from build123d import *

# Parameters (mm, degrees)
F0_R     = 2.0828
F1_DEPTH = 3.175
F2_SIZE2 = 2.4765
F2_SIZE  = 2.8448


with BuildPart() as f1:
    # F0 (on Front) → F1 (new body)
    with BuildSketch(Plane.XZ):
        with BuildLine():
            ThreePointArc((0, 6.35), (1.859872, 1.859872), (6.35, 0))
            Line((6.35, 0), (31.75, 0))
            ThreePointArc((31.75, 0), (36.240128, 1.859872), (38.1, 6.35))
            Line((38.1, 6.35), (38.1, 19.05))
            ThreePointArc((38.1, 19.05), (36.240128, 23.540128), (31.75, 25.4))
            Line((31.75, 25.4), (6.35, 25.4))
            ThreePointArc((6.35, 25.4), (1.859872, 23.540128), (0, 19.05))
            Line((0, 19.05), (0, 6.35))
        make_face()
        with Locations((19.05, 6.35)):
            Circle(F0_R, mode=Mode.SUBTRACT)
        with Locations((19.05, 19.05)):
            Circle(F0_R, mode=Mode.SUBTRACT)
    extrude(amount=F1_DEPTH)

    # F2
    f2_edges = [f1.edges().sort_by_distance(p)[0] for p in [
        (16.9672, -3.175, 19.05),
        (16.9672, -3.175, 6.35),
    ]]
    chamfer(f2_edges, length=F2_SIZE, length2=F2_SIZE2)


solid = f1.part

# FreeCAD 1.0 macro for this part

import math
import FreeCAD as App
import Part
import Sketcher
from FreeCAD import Vector
Q = App.Units.Quantity


def edges_at(feature, points):
    """Names of the edges that pass closest to the given points."""
    edges = feature.Shape.Edges
    near = lambda p: min(range(len(edges)), key=lambda i: edges[i].distToShape(Part.Vertex(*p))[0])
    return sorted({f"Edge{near(p) + 1}" for p in points})

doc = App.newDocument("Part")
body = doc.addObject("PartDesign::Body", "Body")

sketch1 = doc.addObject("Sketcher::SketchObject", "Sketch")
body.addObject(sketch1)
sketch1.AttachmentSupport = (doc.XZ_Plane, [""])
sketch1.MapMode = "FlatFace"
sketch1.addGeometry(Part.ArcOfCircle(Part.Circle(Vector(6.35, 6.35, 0), Vector(0, 0, 1), 6.35), math.radians(-179.999998), math.radians(-90.000002)), False)
sketch1.addGeometry(Part.LineSegment(Vector(6.35, 0, 0), Vector(31.75, 0, 0)), False)
sketch1.addGeometry(Part.ArcOfCircle(Part.Circle(Vector(31.75, 6.35, 0), Vector(0, 0, 1), 6.35), math.radians(-89.999998), math.radians(-0.000002)), False)
sketch1.addGeometry(Part.LineSegment(Vector(38.1, 6.35, 0), Vector(38.1, 19.05, 0)), False)
sketch1.addGeometry(Part.ArcOfCircle(Part.Circle(Vector(31.75, 19.05, 0), Vector(0, 0, 1), 6.35), math.radians(0.000002), math.radians(89.999998)), False)
sketch1.addGeometry(Part.LineSegment(Vector(31.75, 25.4, 0), Vector(6.35, 25.4, 0)), False)
sketch1.addGeometry(Part.ArcOfCircle(Part.Circle(Vector(6.35, 19.05, 0), Vector(0, 0, 1), 6.35), math.radians(90.000002), math.radians(179.999998)), False)
sketch1.addGeometry(Part.LineSegment(Vector(0, 19.05, 0), Vector(0, 6.35, 0)), False)
sketch1.addGeometry(Part.Circle(Vector(19.05, 6.35, 0), Vector(0, 0, 1), 2.0828), False)
sketch1.addGeometry(Part.Circle(Vector(19.05, 19.05, 0), Vector(0, 0, 1), 2.0828), False)
sketch1.addConstraint(Sketcher.Constraint("Tangent", 0, 2, 1, 1))
sketch1.addConstraint(Sketcher.Constraint("Tangent", 1, 2, 2, 1))
sketch1.addConstraint(Sketcher.Constraint("Tangent", 2, 2, 3, 1))
sketch1.addConstraint(Sketcher.Constraint("Tangent", 3, 2, 4, 1))
sketch1.addConstraint(Sketcher.Constraint("Tangent", 4, 2, 5, 1))
sketch1.addConstraint(Sketcher.Constraint("Tangent", 5, 2, 6, 1))
sketch1.addConstraint(Sketcher.Constraint("Tangent", 6, 2, 7, 1))
sketch1.addConstraint(Sketcher.Constraint("Tangent", 7, 2, 0, 1))
sketch1.addConstraint(Sketcher.Constraint("Horizontal", 1))
sketch1.addConstraint(Sketcher.Constraint("Vertical", 3))
sketch1.addConstraint(Sketcher.Constraint("Horizontal", 5))
sketch1.addConstraint(Sketcher.Constraint("Vertical", 7))
sketch1.addConstraint(Sketcher.Constraint("Equal", 0, 2))
sketch1.addConstraint(Sketcher.Constraint("Equal", 2, 4))
sketch1.addConstraint(Sketcher.Constraint("Equal", 4, 6))
sketch1.addConstraint(Sketcher.Constraint("Equal", 8, 9))
sketch1.addConstraint(Sketcher.Constraint("PointOnObject", 0, 2, -1))
sketch1.addConstraint(Sketcher.Constraint("PointOnObject", 6, 2, -2))
sketch1.addConstraint(Sketcher.Constraint("Horizontal", 2, 3, 8, 3))
sketch1.addConstraint(Sketcher.Constraint("Horizontal", 6, 3, 9, 3))
sketch1.addConstraint(Sketcher.Constraint("Vertical", 8, 3, 9, 3))
sketch1.addConstraint(Sketcher.Constraint("DistanceX", 1, 1, 1, 2, Q("1 in")))
sketch1.addConstraint(Sketcher.Constraint("Radius", 0, Q("0.25 in")))
sketch1.addConstraint(Sketcher.Constraint("Diameter", 8, Q("0.164 in")))
sketch1.addConstraint(Sketcher.Constraint("DistanceY", 3, 1, 3, 2, Q("0.5 in")))
sketch1.addConstraint(Sketcher.Constraint("DistanceX", 0, 3, 8, 3, Q("0.5 in")))
pad1 = doc.addObject("PartDesign::Pad", "Pad")
body.addObject(pad1)
pad1.Profile = sketch1
pad1.Length = Q("0.125 in")
doc.recompute()

chamfer = doc.addObject("PartDesign::Chamfer", "Chamfer")
body.addObject(chamfer)
chamfer.Base = (pad1, edges_at(pad1, [(16.967, -3.175, 19.05), (16.967, -3.175, 6.35)]))
chamfer.ChamferType = "Two distances"
chamfer.Size = Q("0.112 in")
chamfer.Size2 = Q("0.0975 in")

doc.recompute()
